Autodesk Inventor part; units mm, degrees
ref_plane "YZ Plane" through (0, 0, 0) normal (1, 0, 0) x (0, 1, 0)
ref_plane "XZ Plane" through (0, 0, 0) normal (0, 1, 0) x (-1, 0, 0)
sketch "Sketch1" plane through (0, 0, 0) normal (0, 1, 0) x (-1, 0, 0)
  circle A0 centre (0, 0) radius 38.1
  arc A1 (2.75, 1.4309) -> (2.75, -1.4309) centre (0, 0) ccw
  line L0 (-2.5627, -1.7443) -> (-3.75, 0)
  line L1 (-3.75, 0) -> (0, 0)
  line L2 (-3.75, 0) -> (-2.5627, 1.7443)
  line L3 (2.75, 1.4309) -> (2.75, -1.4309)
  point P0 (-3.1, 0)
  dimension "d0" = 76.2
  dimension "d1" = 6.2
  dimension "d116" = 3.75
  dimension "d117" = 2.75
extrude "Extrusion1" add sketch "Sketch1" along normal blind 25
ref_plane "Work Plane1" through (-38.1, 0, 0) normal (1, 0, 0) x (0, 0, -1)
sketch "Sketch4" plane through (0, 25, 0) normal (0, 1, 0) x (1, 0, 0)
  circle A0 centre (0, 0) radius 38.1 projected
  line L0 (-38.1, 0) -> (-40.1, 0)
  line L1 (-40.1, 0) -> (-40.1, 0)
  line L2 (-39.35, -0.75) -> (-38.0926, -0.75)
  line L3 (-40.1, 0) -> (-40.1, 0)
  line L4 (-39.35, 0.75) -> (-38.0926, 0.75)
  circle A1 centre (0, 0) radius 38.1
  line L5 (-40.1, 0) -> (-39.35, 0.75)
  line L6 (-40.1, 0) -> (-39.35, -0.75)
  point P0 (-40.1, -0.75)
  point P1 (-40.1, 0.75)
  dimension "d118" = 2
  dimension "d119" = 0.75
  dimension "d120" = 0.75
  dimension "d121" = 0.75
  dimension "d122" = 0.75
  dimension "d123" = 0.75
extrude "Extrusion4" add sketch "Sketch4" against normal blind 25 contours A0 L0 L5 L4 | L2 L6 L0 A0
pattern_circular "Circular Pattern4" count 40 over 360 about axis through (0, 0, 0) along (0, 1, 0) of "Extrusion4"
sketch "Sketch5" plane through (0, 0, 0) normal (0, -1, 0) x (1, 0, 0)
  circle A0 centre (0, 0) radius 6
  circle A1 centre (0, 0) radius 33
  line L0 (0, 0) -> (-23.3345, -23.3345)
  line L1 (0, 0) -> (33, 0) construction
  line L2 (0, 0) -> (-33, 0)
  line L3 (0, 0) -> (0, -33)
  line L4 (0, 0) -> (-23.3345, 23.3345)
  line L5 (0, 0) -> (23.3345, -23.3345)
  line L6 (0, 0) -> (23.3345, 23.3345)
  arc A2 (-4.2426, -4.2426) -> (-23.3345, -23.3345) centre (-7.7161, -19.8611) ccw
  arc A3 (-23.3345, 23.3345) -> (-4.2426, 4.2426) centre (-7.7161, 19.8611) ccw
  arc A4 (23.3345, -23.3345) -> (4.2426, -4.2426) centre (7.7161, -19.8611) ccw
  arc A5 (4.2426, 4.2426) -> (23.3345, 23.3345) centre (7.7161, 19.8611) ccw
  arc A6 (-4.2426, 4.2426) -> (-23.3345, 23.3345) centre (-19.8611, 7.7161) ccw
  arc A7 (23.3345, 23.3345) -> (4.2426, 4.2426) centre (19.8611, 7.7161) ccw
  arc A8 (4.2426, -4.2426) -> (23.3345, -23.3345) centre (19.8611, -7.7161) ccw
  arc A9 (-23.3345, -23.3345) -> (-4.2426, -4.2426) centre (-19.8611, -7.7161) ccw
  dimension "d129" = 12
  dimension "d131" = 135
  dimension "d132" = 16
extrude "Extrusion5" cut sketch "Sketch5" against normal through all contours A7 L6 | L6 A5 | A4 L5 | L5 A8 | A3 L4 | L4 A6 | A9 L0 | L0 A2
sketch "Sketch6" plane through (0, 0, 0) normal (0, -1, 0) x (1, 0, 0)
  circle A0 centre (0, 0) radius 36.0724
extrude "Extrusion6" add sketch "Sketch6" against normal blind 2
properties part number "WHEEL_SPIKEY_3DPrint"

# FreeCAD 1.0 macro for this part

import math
import FreeCAD as App
import Part
import Sketcher

doc = App.newDocument("Part")
body = doc.addObject("PartDesign::Body", "Body")

# Sketch on XZ plane
sketch1 = body.newObject("Sketcher::SketchObject", "Sketch")
sketch1.AttachmentSupport = (doc.getObject("XZ_Plane"), [""])
sketch1.MapMode = "FlatFace"
sketch1.addGeometry([
    Part.Circle(App.Vector(0, 0, 0), App.Vector(0, 0, 1), 38.1),  # 0
    Part.ArcOfCircle(Part.Circle(App.Vector(0, 0, 0), App.Vector(0, 0, 1), 3.1), math.radians(34), math.radians(153)),  # 1
    Part.LineSegment(App.Vector(-2.8, 1.4, 0), App.Vector(-2.8, -1.4, 0)),  # 2
    Part.ArcOfCircle(Part.Circle(App.Vector(0, 0, 0), App.Vector(0, 0, 1), 3.1), math.radians(-153), math.radians(-34)),  # 3
    Part.LineSegment(App.Vector(2.6, -1.7, 0), App.Vector(3.8, 0, 0)),  # 4
    Part.LineSegment(App.Vector(3.8, 0, 0), App.Vector(2.6, 1.7, 0)),  # 5
], False)
sketch1.addConstraint([
    Sketcher.Constraint("Coincident", 1, 2, 2, 1),
    Sketcher.Constraint("Coincident", 2, 2, 3, 1),
    Sketcher.Constraint("Tangent", 3, 2, 4, 1),
    Sketcher.Constraint("Coincident", 4, 2, 5, 1),
    Sketcher.Constraint("Tangent", 5, 2, 1, 1),
    Sketcher.Constraint("Vertical", 2),
    Sketcher.Constraint("Coincident", 0, 3, -1, 1),
    Sketcher.Constraint("Coincident", 1, 3, -1, 1),
    Sketcher.Constraint("Coincident", 3, 3, -1, 1),
    Sketcher.Constraint("Equal", 1, 3),
    Sketcher.Constraint("PointOnObject", 4, 2, -1),
    Sketcher.Constraint("Diameter", 0, 76.2),
    Sketcher.Constraint("Radius", 1, 3.1),
    Sketcher.Constraint("DistanceX", 1, 2, -1, 1, 2.75),
    Sketcher.Constraint("DistanceX", -1, 1, 4, 2, 3.75),
])
pad1 = body.newObject("PartDesign::Pad", "Pad")
pad1.Profile = sketch1
pad1.Length = 25
pad1.Reversed = True

# Sketch on XZ plane
sketch2 = body.newObject("Sketcher::SketchObject", "Sketch001")
sketch2.AttachmentSupport = (doc.getObject("XZ_Plane"), [""])
sketch2.MapMode = "FlatFace"
sketch2.AttachmentOffset = App.Placement(App.Vector(0, 0, -25), App.Rotation())
sketch2.addGeometry([
    Part.LineSegment(App.Vector(-38.1, -0.8, 0), App.Vector(-39.4, -0.8, 0)),  # 0
    Part.LineSegment(App.Vector(-39.4, -0.8, 0), App.Vector(-40.1, 0, 0)),  # 1
    Part.LineSegment(App.Vector(-40.1, 0, 0), App.Vector(-39.4, 0.8, 0)),  # 2
    Part.LineSegment(App.Vector(-39.4, 0.8, 0), App.Vector(-38.1, 0.8, 0)),  # 3
    Part.ArcOfCircle(Part.Circle(App.Vector(0, 0, 0), App.Vector(0, 0, 1), 38.1), math.radians(178.87), math.radians(181.13)),  # 4
], False)
sketch2.addConstraint([
    Sketcher.Constraint("Coincident", 0, 2, 1, 1),
    Sketcher.Constraint("Coincident", 1, 2, 2, 1),
    Sketcher.Constraint("Coincident", 2, 2, 3, 1),
    Sketcher.Constraint("Coincident", 3, 2, 4, 1),
    Sketcher.Constraint("Coincident", 4, 2, 0, 1),
    Sketcher.Constraint("Horizontal", 0),
    Sketcher.Constraint("Horizontal", 3),
    Sketcher.Constraint("Coincident", 4, 3, -1, 1),
    Sketcher.Constraint("Symmetric", 0, 2, 2, 2, -1),
    Sketcher.Constraint("PointOnObject", 1, 2, -1),
    Sketcher.Constraint("Perpendicular", 1, 2),
    Sketcher.Constraint("Radius", 4, 38.1),
    Sketcher.Constraint("DistanceY", 0, 2, -1, 1, 0.75),
    Sketcher.Constraint("DistanceX", 1, 2, -1, 1, 40.1),
])
pad2 = body.newObject("PartDesign::Pad", "Pad001")
pad2.Profile = sketch2
pad2.Length = 25
doc.recompute()

polarpattern = body.newObject("PartDesign::PolarPattern", "PolarPattern")
polarpattern.Originals = [pad2]
polarpattern.Axis = (doc.getObject("Y_Axis"), [""])
polarpattern.Angle = 360
polarpattern.Occurrences = 40
body.Tip = polarpattern

# Sketch on XZ plane
sketch3 = body.newObject("Sketcher::SketchObject", "Sketch002")
sketch3.AttachmentSupport = (doc.getObject("XZ_Plane"), [""])
sketch3.MapMode = "FlatFace"
sketch3.addGeometry([
    Part.ArcOfCircle(Part.Circle(App.Vector(20, 8, 0), App.Vector(0, 0, 1), 16), math.radians(77), math.radians(193)),  # 0
    Part.ArcOfCircle(Part.Circle(App.Vector(8, 20, 0), App.Vector(0, 0, 1), 16), math.radians(-103), math.radians(13)),  # 1
    Part.ArcOfCircle(Part.Circle(App.Vector(8, -20, 0), App.Vector(0, 0, 1), 16), math.radians(-13), math.radians(103)),  # 2
    Part.ArcOfCircle(Part.Circle(App.Vector(20, -8, 0), App.Vector(0, 0, 1), 16), math.radians(167), math.radians(283)),  # 3
    Part.ArcOfCircle(Part.Circle(App.Vector(-8, 20, 0), App.Vector(0, 0, 1), 16), math.radians(167), math.radians(283)),  # 4
    Part.ArcOfCircle(Part.Circle(App.Vector(-20, 8, 0), App.Vector(0, 0, 1), 16), math.radians(-13), math.radians(103)),  # 5
    Part.ArcOfCircle(Part.Circle(App.Vector(-20, -8, 0), App.Vector(0, 0, 1), 16), math.radians(-103), math.radians(13)),  # 6
    Part.ArcOfCircle(Part.Circle(App.Vector(-8, -20, 0), App.Vector(0, 0, 1), 16), math.radians(77), math.radians(193)),  # 7
], False)
sketch3.addConstraint([
    Sketcher.Constraint("Coincident", 0, 1, 1, 2),
    Sketcher.Constraint("Coincident", 1, 1, 0, 2),
    Sketcher.Constraint("Coincident", 2, 1, 3, 2),
    Sketcher.Constraint("Coincident", 3, 1, 2, 2),
    Sketcher.Constraint("Coincident", 4, 1, 5, 2),
    Sketcher.Constraint("Coincident", 5, 1, 4, 2),
    Sketcher.Constraint("Coincident", 6, 1, 7, 2),
    Sketcher.Constraint("Coincident", 7, 1, 6, 2),
    Sketcher.Constraint("Equal", 0, 1),
    Sketcher.Constraint("Equal", 1, 2),
    Sketcher.Constraint("Equal", 2, 3),
    Sketcher.Constraint("Equal", 3, 4),
    Sketcher.Constraint("Equal", 4, 5),
    Sketcher.Constraint("Equal", 5, 6),
    Sketcher.Constraint("Equal", 6, 7),
    Sketcher.Constraint("Symmetric", 2, 3, 4, 3, -1, 1),
    Sketcher.Constraint("Symmetric", 3, 3, 5, 3, -1, 1),
    Sketcher.Constraint("Symmetric", 0, 3, 6, 3, -1, 1),
    Sketcher.Constraint("Symmetric", 1, 3, 7, 3, -1, 1),
    Sketcher.Constraint("Symmetric", 1, 3, 4, 3, -2),
    Sketcher.Constraint("Symmetric", 0, 3, 5, 3, -2),
    Sketcher.Constraint("Radius", 0, 16.0),
    Sketcher.Constraint("DistanceX", -1, 1, 0, 3, 19.861),
    Sketcher.Constraint("DistanceY", -1, 1, 0, 3, 7.716),
    Sketcher.Constraint("DistanceX", -1, 1, 1, 3, 7.716),
    Sketcher.Constraint("DistanceY", -1, 1, 1, 3, 19.861),
])
pocket1 = body.newObject("PartDesign::Pocket", "Pocket")
pocket1.Profile = sketch3
pocket1.Type = "ThroughAll"

# Sketch on XZ plane
sketch4 = body.newObject("Sketcher::SketchObject", "Sketch003")
sketch4.AttachmentSupport = (doc.getObject("XZ_Plane"), [""])
sketch4.MapMode = "FlatFace"
sketch4.addGeometry(Part.Circle(App.Vector(0, 0, 0), App.Vector(0, 0, 1), 36), False)
sketch4.addConstraint([
    Sketcher.Constraint("Coincident", 0, 3, -1, 1),
    Sketcher.Constraint("Diameter", 0, 72.1448),
])
pad3 = body.newObject("PartDesign::Pad", "Pad002")
pad3.Profile = sketch4
pad3.Length = 2
pad3.Reversed = True

doc.recompute()
